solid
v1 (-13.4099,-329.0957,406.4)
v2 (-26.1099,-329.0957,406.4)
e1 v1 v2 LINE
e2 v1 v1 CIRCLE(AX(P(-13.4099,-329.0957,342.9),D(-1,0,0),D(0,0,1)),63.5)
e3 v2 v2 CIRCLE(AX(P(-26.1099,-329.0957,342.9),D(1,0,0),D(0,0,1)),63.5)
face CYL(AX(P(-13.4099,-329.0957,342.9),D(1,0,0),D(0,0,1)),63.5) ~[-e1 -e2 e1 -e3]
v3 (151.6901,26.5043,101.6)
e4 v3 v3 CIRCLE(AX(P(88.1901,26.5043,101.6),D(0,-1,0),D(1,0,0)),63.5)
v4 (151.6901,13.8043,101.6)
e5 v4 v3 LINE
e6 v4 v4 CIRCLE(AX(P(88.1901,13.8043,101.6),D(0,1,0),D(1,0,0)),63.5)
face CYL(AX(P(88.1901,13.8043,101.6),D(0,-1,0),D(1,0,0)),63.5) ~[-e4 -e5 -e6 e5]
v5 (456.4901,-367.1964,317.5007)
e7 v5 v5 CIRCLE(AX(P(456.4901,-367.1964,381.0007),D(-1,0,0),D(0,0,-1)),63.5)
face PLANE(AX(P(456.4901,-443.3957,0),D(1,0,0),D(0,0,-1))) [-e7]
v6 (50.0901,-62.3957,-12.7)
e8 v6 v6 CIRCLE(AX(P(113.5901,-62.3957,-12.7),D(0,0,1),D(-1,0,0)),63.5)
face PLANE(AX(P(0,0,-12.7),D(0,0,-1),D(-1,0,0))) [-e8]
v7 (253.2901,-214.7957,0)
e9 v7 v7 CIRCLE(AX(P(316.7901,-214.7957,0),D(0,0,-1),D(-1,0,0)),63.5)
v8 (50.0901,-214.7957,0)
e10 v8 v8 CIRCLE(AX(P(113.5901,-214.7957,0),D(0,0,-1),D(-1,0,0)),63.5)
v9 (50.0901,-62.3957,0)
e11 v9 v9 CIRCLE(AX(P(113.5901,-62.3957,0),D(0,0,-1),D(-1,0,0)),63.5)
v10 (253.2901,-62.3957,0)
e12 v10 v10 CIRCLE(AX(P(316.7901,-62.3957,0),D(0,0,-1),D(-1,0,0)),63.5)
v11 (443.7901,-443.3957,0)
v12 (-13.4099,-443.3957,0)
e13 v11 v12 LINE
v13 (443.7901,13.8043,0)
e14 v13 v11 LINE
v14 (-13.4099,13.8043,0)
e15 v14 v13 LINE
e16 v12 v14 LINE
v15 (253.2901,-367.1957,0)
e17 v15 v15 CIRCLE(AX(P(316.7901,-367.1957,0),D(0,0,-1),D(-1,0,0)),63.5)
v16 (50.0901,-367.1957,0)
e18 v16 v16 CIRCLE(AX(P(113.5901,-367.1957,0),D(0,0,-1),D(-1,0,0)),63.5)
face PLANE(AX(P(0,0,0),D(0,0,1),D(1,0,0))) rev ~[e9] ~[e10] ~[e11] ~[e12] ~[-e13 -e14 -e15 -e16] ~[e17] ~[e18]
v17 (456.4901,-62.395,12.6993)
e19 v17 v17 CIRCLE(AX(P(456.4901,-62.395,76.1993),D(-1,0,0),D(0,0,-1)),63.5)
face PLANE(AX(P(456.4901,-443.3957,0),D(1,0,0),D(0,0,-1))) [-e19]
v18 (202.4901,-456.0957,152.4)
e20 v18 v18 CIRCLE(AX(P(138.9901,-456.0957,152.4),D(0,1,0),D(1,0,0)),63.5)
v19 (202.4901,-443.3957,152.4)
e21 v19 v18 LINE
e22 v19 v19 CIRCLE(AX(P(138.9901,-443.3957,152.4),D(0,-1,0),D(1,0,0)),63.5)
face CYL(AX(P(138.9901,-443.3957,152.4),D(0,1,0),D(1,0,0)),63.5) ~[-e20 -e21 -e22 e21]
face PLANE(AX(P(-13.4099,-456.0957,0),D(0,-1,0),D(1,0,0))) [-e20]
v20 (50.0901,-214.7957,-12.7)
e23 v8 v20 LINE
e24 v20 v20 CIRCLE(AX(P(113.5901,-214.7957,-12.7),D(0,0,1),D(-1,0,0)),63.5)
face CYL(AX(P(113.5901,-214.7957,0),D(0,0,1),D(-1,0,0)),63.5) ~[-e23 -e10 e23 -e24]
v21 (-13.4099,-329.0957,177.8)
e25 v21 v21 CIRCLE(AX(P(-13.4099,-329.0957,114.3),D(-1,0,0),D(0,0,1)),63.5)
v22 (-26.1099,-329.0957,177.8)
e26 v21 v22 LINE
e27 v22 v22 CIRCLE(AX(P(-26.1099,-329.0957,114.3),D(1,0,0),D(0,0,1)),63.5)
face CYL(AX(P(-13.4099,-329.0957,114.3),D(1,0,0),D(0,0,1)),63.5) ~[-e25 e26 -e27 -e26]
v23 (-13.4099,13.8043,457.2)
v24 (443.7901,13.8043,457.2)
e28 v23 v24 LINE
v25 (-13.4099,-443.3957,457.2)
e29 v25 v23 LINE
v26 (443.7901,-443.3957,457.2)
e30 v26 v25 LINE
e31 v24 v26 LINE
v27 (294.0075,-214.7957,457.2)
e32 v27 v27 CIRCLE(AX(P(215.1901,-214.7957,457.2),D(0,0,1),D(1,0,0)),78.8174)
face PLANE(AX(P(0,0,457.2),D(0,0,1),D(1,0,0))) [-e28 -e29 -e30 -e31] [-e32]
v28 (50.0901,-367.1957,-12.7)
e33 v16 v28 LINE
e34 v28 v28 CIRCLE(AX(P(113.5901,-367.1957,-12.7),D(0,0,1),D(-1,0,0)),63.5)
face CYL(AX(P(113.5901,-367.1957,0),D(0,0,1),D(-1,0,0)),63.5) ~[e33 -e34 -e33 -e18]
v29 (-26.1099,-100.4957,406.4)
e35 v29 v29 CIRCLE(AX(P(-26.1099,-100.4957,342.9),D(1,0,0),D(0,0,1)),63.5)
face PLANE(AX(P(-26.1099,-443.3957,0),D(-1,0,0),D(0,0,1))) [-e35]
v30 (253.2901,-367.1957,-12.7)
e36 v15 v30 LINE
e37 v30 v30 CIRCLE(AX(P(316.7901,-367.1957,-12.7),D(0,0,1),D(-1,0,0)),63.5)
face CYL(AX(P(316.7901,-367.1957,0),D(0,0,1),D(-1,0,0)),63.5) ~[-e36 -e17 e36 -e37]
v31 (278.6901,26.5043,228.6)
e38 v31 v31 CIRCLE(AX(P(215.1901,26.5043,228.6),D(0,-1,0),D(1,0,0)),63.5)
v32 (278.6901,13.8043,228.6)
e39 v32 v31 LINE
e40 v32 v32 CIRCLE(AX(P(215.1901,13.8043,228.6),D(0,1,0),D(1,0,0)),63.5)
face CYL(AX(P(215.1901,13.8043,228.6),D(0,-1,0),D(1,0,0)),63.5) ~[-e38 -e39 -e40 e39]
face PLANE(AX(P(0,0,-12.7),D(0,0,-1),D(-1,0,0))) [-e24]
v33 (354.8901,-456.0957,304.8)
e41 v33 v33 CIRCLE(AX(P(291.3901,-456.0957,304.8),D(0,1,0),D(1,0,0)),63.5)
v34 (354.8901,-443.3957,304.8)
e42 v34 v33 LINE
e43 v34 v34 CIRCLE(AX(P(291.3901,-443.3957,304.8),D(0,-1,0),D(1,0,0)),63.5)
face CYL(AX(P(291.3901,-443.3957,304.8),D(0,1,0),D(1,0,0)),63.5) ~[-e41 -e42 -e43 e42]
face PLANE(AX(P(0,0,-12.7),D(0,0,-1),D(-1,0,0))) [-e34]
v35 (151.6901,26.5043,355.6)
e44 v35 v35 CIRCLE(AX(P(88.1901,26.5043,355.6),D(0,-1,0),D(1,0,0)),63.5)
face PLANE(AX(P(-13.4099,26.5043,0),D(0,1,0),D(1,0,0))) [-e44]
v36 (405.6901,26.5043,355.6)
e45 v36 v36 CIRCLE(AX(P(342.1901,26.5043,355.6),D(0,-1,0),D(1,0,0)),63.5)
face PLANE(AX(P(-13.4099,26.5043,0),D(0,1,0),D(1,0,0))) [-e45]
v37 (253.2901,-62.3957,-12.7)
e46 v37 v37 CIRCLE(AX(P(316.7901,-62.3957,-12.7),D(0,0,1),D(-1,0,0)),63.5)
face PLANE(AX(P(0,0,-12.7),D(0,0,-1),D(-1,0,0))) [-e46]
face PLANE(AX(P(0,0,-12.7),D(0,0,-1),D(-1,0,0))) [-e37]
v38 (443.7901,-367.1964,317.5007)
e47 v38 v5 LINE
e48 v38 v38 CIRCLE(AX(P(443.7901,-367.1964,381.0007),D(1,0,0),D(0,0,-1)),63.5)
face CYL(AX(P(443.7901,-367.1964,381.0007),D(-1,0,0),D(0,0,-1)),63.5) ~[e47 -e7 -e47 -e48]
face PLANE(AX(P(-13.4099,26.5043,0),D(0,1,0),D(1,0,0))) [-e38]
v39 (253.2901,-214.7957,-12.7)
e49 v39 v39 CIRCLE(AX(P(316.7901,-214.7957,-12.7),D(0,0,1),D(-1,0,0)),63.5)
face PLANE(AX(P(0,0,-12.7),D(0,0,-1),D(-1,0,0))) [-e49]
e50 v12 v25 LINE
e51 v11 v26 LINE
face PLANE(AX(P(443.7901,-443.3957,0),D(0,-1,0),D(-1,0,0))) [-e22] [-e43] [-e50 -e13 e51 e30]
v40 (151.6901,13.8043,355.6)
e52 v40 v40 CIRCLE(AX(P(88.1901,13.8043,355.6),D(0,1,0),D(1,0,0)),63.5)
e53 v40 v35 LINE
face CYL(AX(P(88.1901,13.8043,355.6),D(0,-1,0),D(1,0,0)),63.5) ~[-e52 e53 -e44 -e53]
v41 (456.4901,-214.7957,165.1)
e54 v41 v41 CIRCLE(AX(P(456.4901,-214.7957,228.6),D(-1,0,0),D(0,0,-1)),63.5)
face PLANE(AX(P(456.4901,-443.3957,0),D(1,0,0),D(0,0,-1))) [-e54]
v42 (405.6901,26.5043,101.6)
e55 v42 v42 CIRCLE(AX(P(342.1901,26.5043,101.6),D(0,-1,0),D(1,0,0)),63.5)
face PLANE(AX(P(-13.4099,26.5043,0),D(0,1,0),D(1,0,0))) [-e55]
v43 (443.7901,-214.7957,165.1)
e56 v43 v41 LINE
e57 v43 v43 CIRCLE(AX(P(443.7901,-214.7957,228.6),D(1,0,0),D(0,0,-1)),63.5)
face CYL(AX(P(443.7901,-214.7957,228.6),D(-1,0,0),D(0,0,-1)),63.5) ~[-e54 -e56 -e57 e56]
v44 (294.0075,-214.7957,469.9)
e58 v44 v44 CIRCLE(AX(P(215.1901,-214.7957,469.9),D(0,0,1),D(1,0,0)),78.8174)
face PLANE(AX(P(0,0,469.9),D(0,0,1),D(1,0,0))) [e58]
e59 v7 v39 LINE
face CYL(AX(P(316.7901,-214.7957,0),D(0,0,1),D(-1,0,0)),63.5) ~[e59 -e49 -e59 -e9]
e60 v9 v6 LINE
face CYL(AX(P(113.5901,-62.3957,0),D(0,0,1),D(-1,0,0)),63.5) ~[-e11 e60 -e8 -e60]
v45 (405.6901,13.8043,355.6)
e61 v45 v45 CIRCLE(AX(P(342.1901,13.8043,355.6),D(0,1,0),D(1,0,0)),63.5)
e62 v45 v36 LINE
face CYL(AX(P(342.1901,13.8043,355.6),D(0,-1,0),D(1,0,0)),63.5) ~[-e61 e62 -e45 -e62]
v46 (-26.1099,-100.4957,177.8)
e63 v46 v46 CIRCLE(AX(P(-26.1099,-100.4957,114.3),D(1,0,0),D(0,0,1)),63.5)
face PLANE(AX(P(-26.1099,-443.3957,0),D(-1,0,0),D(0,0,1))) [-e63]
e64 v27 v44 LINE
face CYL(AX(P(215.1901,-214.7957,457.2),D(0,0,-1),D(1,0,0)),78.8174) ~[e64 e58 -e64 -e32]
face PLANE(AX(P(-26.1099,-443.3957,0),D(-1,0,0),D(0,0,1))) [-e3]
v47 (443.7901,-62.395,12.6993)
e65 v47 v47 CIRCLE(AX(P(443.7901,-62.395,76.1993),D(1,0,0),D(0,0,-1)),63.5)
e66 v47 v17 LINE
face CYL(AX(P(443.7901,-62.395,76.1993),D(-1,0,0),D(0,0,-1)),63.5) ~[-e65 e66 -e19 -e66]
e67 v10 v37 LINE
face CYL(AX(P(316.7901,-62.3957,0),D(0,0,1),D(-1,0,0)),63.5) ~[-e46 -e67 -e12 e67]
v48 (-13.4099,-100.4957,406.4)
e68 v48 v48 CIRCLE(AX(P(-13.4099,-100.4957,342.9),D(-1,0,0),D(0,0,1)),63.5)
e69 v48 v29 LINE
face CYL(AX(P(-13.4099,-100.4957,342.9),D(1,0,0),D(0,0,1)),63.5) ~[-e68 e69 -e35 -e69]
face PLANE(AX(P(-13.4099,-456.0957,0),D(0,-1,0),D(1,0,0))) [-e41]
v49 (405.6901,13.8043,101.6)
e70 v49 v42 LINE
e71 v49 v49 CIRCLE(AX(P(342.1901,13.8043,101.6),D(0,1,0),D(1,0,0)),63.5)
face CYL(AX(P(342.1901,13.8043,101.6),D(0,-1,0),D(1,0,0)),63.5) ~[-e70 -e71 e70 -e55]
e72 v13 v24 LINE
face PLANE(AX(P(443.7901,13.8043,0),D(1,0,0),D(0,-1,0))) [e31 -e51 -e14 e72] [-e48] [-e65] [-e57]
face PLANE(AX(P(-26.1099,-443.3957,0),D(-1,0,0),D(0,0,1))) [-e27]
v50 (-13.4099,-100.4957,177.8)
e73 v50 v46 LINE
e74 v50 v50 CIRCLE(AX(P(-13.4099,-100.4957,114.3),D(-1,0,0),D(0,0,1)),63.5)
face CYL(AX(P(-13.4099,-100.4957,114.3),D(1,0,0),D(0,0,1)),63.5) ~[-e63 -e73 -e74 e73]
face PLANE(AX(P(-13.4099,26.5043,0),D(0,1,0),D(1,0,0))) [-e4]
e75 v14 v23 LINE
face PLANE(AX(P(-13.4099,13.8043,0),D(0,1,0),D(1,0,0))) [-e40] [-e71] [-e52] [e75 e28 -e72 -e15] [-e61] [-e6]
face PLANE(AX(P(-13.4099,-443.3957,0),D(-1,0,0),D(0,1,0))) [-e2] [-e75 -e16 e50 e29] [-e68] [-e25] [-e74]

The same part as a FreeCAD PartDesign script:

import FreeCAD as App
import Part
import Sketcher

V = App.Vector
Q = App.Units.Quantity


def add_polygon(sketch, points):
    """Adds a closed chain of lines whose ends are joined by coincident constraints."""
    first, n = sketch.GeometryCount, len(points)
    for a, b in zip(points, points[1:] + points[:1]):
        sketch.addGeometry(Part.LineSegment(App.Vector(*a, 0), App.Vector(*b, 0)), False)
    for i in range(n):
        sketch.addConstraint(Sketcher.Constraint("Coincident", first + i, 2, first + (i + 1) % n, 1))

doc = App.newDocument("Part")
body = doc.addObject("PartDesign::Body", "Body")

# Sketch on XY plane
sketch1 = body.newObject("Sketcher::SketchObject", "Sketch")
sketch1.AttachmentSupport = (doc.getObject("XY_Plane"), [""])
sketch1.MapMode = "FlatFace"
add_polygon(sketch1, [(444, 14), (-13, 14), (-13, -443), (444, -443)])  # lines 0-3
sketch1.addConstraint(Sketcher.Constraint("Horizontal", 0))
sketch1.addConstraint(Sketcher.Constraint("Vertical", 1))
sketch1.addConstraint(Sketcher.Constraint("Horizontal", 2))
sketch1.addConstraint(Sketcher.Constraint("Vertical", 3))
sketch1.addConstraint(Sketcher.Constraint("Equal", 2, 1))
sketch1.addConstraint(Sketcher.Constraint("DistanceX", 0, 2, 0, 1, Q("18 in")))
sketch1.addConstraint(Sketcher.Constraint("DistanceX", 0, 2, -1, 1, 13.41))
sketch1.addConstraint(Sketcher.Constraint("DistanceY", -1, 1, 0, 2, 13.8043))
pad1 = body.newObject("PartDesign::Pad", "Pad")
pad1.Profile = sketch1
pad1.Length = Q("18 in")

# Sketch on XY plane
sketch2 = body.newObject("Sketcher::SketchObject", "Sketch001")
sketch2.AttachmentSupport = (doc.getObject("XY_Plane"), [""])
sketch2.MapMode = "FlatFace"
sketch2.AttachmentOffset = App.Placement(V(0, 0, 18 * 25.4), App.Rotation())
sketch2.addGeometry(Part.Circle(V(215, -215, 0), V(0, 0, 1), 79), False)
sketch2.addConstraint(Sketcher.Constraint("Diameter", 0, Q("6.2061 in")))
sketch2.addConstraint(Sketcher.Constraint("DistanceX", -1, 1, 0, 3, 215.19))
sketch2.addConstraint(Sketcher.Constraint("DistanceY", 0, 3, -1, 1, 214.7957))
pad2 = body.newObject("PartDesign::Pad", "Pad001")
pad2.Profile = sketch2
pad2.Length = Q("0.5 in")

# Sketch on YZ plane
sketch3 = body.newObject("Sketcher::SketchObject", "Sketch002")
sketch3.AttachmentSupport = (doc.getObject("YZ_Plane"), [""])
sketch3.MapMode = "FlatFace"
sketch3.AttachmentOffset = App.Placement(V(0, 0, 443.7901), App.Rotation())
sketch3.addGeometry(Part.Circle(V(-62, 76, 0), V(0, 0, 1), 64), False)
sketch3.addGeometry(Part.Circle(V(-367, 381, 0), V(0, 0, 1), 64), False)
sketch3.addGeometry(Part.Circle(V(-215, 229, 0), V(0, 0, 1), 64), False)
sketch3.addConstraint(Sketcher.Constraint("Equal", 0, 1))
sketch3.addConstraint(Sketcher.Constraint("Equal", 1, 2))
sketch3.addConstraint(Sketcher.Constraint("Diameter", 0, Q("5 in")))
sketch3.addConstraint(Sketcher.Constraint("DistanceY", -1, 1, 2, 3, Q("9 in")))
sketch3.addConstraint(Sketcher.Constraint("DistanceX", 0, 3, -1, 1, Q("2.4565 in")))
sketch3.addConstraint(Sketcher.Constraint("DistanceY", -1, 1, 0, 3, 76.1993))
sketch3.addConstraint(Sketcher.Constraint("DistanceX", 1, 3, -1, 1, 367.1964))
sketch3.addConstraint(Sketcher.Constraint("DistanceY", -1, 1, 1, 3, 381.0007))
sketch3.addConstraint(Sketcher.Constraint("DistanceX", 2, 3, -1, 1, 214.7957))
pad3 = body.newObject("PartDesign::Pad", "Pad002")
pad3.Profile = sketch3
pad3.Length = Q("0.5 in")

# Sketch on YZ plane
sketch4 = body.newObject("Sketcher::SketchObject", "Sketch003")
sketch4.AttachmentSupport = (doc.getObject("YZ_Plane"), [""])
sketch4.MapMode = "FlatFace"
sketch4.AttachmentOffset = App.Placement(V(0, 0, -13.4099), App.Rotation())
sketch4.addGeometry(Part.Circle(V(-100, 114, 0), V(0, 0, 1), 64), False)
sketch4.addGeometry(Part.Circle(V(-100, 343, 0), V(0, 0, 1), 64), False)
sketch4.addGeometry(Part.Circle(V(-329, 114, 0), V(0, 0, 1), 64), False)
sketch4.addGeometry(Part.Circle(V(-329, 343, 0), V(0, 0, 1), 64), False)
sketch4.addConstraint(Sketcher.Constraint("Equal", 0, 1))
sketch4.addConstraint(Sketcher.Constraint("Equal", 1, 2))
sketch4.addConstraint(Sketcher.Constraint("Equal", 2, 3))
sketch4.addConstraint(Sketcher.Constraint("Horizontal", 0, 3, 2, 3))
sketch4.addConstraint(Sketcher.Constraint("Horizontal", 1, 3, 3, 3))
sketch4.addConstraint(Sketcher.Constraint("Vertical", 0, 3, 1, 3))
sketch4.addConstraint(Sketcher.Constraint("Vertical", 2, 3, 3, 3))
sketch4.addConstraint(Sketcher.Constraint("Diameter", 0, Q("5 in")))
sketch4.addConstraint(Sketcher.Constraint("DistanceY", 0, 3, 1, 3, Q("9 in")))
sketch4.addConstraint(Sketcher.Constraint("DistanceX", 2, 3, 0, 3, Q("9 in")))
sketch4.addConstraint(Sketcher.Constraint("DistanceY", -1, 1, 0, 3, Q("4.5 in")))
sketch4.addConstraint(Sketcher.Constraint("DistanceX", 0, 3, -1, 1, 100.4957))
pad4 = body.newObject("PartDesign::Pad", "Pad003")
pad4.Profile = sketch4
pad4.Length = Q("0.5 in")
pad4.Reversed = True

# Sketch on XY plane
sketch5 = body.newObject("Sketcher::SketchObject", "Sketch004")
sketch5.AttachmentSupport = (doc.getObject("XY_Plane"), [""])
sketch5.MapMode = "FlatFace"
sketch5.addGeometry(Part.Circle(V(317, -62, 0), V(0, 0, 1), 64), False)
sketch5.addGeometry(Part.Circle(V(114, -62, 0), V(0, 0, 1), 64), False)
sketch5.addGeometry(Part.Circle(V(317, -215, 0), V(0, 0, 1), 64), False)
sketch5.addGeometry(Part.Circle(V(114, -215, 0), V(0, 0, 1), 64), False)
sketch5.addGeometry(Part.Circle(V(317, -367, 0), V(0, 0, 1), 64), False)
sketch5.addGeometry(Part.Circle(V(114, -367, 0), V(0, 0, 1), 64), False)
sketch5.addConstraint(Sketcher.Constraint("Equal", 0, 1))
sketch5.addConstraint(Sketcher.Constraint("Equal", 1, 2))
sketch5.addConstraint(Sketcher.Constraint("Equal", 2, 3))
sketch5.addConstraint(Sketcher.Constraint("Equal", 3, 4))
sketch5.addConstraint(Sketcher.Constraint("Equal", 4, 5))
sketch5.addConstraint(Sketcher.Constraint("Horizontal", 0, 3, 1, 3))
sketch5.addConstraint(Sketcher.Constraint("Horizontal", 2, 3, 3, 3))
sketch5.addConstraint(Sketcher.Constraint("Horizontal", 4, 3, 5, 3))
sketch5.addConstraint(Sketcher.Constraint("Vertical", 0, 3, 2, 3))
sketch5.addConstraint(Sketcher.Constraint("Vertical", 1, 3, 3, 3))
sketch5.addConstraint(Sketcher.Constraint("Vertical", 2, 3, 4, 3))
sketch5.addConstraint(Sketcher.Constraint("Vertical", 3, 3, 5, 3))
sketch5.addConstraint(Sketcher.Constraint("Diameter", 0, Q("5 in")))
sketch5.addConstraint(Sketcher.Constraint("DistanceX", 1, 3, 0, 3, Q("8 in")))
sketch5.addConstraint(Sketcher.Constraint("DistanceY", 2, 3, 0, 3, Q("6 in")))
sketch5.addConstraint(Sketcher.Constraint("DistanceY", 4, 3, 2, 3, Q("6 in")))
sketch5.addConstraint(Sketcher.Constraint("DistanceX", -1, 1, 0, 3, 316.79))
sketch5.addConstraint(Sketcher.Constraint("DistanceY", 0, 3, -1, 1, 62.3957))
pad5 = body.newObject("PartDesign::Pad", "Pad004")
pad5.Profile = sketch5
pad5.Length = Q("0.5 in")
pad5.Reversed = True

# Sketch on XZ plane
sketch6 = body.newObject("Sketcher::SketchObject", "Sketch005")
sketch6.AttachmentSupport = (doc.getObject("XZ_Plane"), [""])
sketch6.MapMode = "FlatFace"
sketch6.AttachmentOffset = App.Placement(V(0, 0, -13.8043), App.Rotation())
sketch6.addGeometry(Part.Circle(V(88, 102, 0), V(0, 0, 1), 64), False)
sketch6.addGeometry(Part.Circle(V(342, 102, 0), V(0, 0, 1), 64), False)
sketch6.addGeometry(Part.Circle(V(88, 356, 0), V(0, 0, 1), 64), False)
sketch6.addGeometry(Part.Circle(V(215, 229, 0), V(0, 0, 1), 64), False)
sketch6.addGeometry(Part.Circle(V(342, 356, 0), V(0, 0, 1), 64), False)
sketch6.addConstraint(Sketcher.Constraint("Equal", 0, 1))
sketch6.addConstraint(Sketcher.Constraint("Equal", 1, 2))
sketch6.addConstraint(Sketcher.Constraint("Equal", 2, 3))
sketch6.addConstraint(Sketcher.Constraint("Equal", 3, 4))
sketch6.addConstraint(Sketcher.Constraint("Horizontal", 0, 3, 1, 3))
sketch6.addConstraint(Sketcher.Constraint("Horizontal", 2, 3, 4, 3))
sketch6.addConstraint(Sketcher.Constraint("Vertical", 0, 3, 2, 3))
sketch6.addConstraint(Sketcher.Constraint("Vertical", 1, 3, 4, 3))
sketch6.addConstraint(Sketcher.Constraint("Diameter", 0, Q("5 in")))
sketch6.addConstraint(Sketcher.Constraint("DistanceY", -1, 1, 0, 3, Q("4 in")))
sketch6.addConstraint(Sketcher.Constraint("DistanceX", 0, 3, 1, 3, Q("10 in")))
sketch6.addConstraint(Sketcher.Constraint("DistanceY", 0, 3, 2, 3, Q("10 in")))
sketch6.addConstraint(Sketcher.Constraint("DistanceX", 3, 3, 1, 3, Q("5 in")))
sketch6.addConstraint(Sketcher.Constraint("DistanceY", 1, 3, 3, 3, Q("5 in")))
sketch6.addConstraint(Sketcher.Constraint("DistanceX", -1, 1, 0, 3, 88.19))
pad6 = body.newObject("PartDesign::Pad", "Pad005")
pad6.Profile = sketch6
pad6.Length = Q("0.5 in")
pad6.Reversed = True

# Sketch on XZ plane
sketch7 = body.newObject("Sketcher::SketchObject", "Sketch006")
sketch7.AttachmentSupport = (doc.getObject("XZ_Plane"), [""])
sketch7.MapMode = "FlatFace"
sketch7.AttachmentOffset = App.Placement(V(0, 0, 443.3957), App.Rotation())
sketch7.addGeometry(Part.Circle(V(139, 152, 0), V(0, 0, 1), 64), False)
sketch7.addGeometry(Part.Circle(V(291, 305, 0), V(0, 0, 1), 64), False)
sketch7.addConstraint(Sketcher.Constraint("Equal", 0, 1))
sketch7.addConstraint(Sketcher.Constraint("Diameter", 0, Q("5 in")))
sketch7.addConstraint(Sketcher.Constraint("DistanceY", -1, 1, 0, 3, Q("6 in")))
sketch7.addConstraint(Sketcher.Constraint("DistanceY", -1, 1, 1, 3, Q("12 in")))
sketch7.addConstraint(Sketcher.Constraint("DistanceX", 0, 3, 1, 3, Q("6 in")))
sketch7.addConstraint(Sketcher.Constraint("DistanceX", -1, 1, 0, 3, 138.99))
pad7 = body.newObject("PartDesign::Pad", "Pad006")
pad7.Profile = sketch7
pad7.Length = Q("0.5 in")

doc.recompute()
